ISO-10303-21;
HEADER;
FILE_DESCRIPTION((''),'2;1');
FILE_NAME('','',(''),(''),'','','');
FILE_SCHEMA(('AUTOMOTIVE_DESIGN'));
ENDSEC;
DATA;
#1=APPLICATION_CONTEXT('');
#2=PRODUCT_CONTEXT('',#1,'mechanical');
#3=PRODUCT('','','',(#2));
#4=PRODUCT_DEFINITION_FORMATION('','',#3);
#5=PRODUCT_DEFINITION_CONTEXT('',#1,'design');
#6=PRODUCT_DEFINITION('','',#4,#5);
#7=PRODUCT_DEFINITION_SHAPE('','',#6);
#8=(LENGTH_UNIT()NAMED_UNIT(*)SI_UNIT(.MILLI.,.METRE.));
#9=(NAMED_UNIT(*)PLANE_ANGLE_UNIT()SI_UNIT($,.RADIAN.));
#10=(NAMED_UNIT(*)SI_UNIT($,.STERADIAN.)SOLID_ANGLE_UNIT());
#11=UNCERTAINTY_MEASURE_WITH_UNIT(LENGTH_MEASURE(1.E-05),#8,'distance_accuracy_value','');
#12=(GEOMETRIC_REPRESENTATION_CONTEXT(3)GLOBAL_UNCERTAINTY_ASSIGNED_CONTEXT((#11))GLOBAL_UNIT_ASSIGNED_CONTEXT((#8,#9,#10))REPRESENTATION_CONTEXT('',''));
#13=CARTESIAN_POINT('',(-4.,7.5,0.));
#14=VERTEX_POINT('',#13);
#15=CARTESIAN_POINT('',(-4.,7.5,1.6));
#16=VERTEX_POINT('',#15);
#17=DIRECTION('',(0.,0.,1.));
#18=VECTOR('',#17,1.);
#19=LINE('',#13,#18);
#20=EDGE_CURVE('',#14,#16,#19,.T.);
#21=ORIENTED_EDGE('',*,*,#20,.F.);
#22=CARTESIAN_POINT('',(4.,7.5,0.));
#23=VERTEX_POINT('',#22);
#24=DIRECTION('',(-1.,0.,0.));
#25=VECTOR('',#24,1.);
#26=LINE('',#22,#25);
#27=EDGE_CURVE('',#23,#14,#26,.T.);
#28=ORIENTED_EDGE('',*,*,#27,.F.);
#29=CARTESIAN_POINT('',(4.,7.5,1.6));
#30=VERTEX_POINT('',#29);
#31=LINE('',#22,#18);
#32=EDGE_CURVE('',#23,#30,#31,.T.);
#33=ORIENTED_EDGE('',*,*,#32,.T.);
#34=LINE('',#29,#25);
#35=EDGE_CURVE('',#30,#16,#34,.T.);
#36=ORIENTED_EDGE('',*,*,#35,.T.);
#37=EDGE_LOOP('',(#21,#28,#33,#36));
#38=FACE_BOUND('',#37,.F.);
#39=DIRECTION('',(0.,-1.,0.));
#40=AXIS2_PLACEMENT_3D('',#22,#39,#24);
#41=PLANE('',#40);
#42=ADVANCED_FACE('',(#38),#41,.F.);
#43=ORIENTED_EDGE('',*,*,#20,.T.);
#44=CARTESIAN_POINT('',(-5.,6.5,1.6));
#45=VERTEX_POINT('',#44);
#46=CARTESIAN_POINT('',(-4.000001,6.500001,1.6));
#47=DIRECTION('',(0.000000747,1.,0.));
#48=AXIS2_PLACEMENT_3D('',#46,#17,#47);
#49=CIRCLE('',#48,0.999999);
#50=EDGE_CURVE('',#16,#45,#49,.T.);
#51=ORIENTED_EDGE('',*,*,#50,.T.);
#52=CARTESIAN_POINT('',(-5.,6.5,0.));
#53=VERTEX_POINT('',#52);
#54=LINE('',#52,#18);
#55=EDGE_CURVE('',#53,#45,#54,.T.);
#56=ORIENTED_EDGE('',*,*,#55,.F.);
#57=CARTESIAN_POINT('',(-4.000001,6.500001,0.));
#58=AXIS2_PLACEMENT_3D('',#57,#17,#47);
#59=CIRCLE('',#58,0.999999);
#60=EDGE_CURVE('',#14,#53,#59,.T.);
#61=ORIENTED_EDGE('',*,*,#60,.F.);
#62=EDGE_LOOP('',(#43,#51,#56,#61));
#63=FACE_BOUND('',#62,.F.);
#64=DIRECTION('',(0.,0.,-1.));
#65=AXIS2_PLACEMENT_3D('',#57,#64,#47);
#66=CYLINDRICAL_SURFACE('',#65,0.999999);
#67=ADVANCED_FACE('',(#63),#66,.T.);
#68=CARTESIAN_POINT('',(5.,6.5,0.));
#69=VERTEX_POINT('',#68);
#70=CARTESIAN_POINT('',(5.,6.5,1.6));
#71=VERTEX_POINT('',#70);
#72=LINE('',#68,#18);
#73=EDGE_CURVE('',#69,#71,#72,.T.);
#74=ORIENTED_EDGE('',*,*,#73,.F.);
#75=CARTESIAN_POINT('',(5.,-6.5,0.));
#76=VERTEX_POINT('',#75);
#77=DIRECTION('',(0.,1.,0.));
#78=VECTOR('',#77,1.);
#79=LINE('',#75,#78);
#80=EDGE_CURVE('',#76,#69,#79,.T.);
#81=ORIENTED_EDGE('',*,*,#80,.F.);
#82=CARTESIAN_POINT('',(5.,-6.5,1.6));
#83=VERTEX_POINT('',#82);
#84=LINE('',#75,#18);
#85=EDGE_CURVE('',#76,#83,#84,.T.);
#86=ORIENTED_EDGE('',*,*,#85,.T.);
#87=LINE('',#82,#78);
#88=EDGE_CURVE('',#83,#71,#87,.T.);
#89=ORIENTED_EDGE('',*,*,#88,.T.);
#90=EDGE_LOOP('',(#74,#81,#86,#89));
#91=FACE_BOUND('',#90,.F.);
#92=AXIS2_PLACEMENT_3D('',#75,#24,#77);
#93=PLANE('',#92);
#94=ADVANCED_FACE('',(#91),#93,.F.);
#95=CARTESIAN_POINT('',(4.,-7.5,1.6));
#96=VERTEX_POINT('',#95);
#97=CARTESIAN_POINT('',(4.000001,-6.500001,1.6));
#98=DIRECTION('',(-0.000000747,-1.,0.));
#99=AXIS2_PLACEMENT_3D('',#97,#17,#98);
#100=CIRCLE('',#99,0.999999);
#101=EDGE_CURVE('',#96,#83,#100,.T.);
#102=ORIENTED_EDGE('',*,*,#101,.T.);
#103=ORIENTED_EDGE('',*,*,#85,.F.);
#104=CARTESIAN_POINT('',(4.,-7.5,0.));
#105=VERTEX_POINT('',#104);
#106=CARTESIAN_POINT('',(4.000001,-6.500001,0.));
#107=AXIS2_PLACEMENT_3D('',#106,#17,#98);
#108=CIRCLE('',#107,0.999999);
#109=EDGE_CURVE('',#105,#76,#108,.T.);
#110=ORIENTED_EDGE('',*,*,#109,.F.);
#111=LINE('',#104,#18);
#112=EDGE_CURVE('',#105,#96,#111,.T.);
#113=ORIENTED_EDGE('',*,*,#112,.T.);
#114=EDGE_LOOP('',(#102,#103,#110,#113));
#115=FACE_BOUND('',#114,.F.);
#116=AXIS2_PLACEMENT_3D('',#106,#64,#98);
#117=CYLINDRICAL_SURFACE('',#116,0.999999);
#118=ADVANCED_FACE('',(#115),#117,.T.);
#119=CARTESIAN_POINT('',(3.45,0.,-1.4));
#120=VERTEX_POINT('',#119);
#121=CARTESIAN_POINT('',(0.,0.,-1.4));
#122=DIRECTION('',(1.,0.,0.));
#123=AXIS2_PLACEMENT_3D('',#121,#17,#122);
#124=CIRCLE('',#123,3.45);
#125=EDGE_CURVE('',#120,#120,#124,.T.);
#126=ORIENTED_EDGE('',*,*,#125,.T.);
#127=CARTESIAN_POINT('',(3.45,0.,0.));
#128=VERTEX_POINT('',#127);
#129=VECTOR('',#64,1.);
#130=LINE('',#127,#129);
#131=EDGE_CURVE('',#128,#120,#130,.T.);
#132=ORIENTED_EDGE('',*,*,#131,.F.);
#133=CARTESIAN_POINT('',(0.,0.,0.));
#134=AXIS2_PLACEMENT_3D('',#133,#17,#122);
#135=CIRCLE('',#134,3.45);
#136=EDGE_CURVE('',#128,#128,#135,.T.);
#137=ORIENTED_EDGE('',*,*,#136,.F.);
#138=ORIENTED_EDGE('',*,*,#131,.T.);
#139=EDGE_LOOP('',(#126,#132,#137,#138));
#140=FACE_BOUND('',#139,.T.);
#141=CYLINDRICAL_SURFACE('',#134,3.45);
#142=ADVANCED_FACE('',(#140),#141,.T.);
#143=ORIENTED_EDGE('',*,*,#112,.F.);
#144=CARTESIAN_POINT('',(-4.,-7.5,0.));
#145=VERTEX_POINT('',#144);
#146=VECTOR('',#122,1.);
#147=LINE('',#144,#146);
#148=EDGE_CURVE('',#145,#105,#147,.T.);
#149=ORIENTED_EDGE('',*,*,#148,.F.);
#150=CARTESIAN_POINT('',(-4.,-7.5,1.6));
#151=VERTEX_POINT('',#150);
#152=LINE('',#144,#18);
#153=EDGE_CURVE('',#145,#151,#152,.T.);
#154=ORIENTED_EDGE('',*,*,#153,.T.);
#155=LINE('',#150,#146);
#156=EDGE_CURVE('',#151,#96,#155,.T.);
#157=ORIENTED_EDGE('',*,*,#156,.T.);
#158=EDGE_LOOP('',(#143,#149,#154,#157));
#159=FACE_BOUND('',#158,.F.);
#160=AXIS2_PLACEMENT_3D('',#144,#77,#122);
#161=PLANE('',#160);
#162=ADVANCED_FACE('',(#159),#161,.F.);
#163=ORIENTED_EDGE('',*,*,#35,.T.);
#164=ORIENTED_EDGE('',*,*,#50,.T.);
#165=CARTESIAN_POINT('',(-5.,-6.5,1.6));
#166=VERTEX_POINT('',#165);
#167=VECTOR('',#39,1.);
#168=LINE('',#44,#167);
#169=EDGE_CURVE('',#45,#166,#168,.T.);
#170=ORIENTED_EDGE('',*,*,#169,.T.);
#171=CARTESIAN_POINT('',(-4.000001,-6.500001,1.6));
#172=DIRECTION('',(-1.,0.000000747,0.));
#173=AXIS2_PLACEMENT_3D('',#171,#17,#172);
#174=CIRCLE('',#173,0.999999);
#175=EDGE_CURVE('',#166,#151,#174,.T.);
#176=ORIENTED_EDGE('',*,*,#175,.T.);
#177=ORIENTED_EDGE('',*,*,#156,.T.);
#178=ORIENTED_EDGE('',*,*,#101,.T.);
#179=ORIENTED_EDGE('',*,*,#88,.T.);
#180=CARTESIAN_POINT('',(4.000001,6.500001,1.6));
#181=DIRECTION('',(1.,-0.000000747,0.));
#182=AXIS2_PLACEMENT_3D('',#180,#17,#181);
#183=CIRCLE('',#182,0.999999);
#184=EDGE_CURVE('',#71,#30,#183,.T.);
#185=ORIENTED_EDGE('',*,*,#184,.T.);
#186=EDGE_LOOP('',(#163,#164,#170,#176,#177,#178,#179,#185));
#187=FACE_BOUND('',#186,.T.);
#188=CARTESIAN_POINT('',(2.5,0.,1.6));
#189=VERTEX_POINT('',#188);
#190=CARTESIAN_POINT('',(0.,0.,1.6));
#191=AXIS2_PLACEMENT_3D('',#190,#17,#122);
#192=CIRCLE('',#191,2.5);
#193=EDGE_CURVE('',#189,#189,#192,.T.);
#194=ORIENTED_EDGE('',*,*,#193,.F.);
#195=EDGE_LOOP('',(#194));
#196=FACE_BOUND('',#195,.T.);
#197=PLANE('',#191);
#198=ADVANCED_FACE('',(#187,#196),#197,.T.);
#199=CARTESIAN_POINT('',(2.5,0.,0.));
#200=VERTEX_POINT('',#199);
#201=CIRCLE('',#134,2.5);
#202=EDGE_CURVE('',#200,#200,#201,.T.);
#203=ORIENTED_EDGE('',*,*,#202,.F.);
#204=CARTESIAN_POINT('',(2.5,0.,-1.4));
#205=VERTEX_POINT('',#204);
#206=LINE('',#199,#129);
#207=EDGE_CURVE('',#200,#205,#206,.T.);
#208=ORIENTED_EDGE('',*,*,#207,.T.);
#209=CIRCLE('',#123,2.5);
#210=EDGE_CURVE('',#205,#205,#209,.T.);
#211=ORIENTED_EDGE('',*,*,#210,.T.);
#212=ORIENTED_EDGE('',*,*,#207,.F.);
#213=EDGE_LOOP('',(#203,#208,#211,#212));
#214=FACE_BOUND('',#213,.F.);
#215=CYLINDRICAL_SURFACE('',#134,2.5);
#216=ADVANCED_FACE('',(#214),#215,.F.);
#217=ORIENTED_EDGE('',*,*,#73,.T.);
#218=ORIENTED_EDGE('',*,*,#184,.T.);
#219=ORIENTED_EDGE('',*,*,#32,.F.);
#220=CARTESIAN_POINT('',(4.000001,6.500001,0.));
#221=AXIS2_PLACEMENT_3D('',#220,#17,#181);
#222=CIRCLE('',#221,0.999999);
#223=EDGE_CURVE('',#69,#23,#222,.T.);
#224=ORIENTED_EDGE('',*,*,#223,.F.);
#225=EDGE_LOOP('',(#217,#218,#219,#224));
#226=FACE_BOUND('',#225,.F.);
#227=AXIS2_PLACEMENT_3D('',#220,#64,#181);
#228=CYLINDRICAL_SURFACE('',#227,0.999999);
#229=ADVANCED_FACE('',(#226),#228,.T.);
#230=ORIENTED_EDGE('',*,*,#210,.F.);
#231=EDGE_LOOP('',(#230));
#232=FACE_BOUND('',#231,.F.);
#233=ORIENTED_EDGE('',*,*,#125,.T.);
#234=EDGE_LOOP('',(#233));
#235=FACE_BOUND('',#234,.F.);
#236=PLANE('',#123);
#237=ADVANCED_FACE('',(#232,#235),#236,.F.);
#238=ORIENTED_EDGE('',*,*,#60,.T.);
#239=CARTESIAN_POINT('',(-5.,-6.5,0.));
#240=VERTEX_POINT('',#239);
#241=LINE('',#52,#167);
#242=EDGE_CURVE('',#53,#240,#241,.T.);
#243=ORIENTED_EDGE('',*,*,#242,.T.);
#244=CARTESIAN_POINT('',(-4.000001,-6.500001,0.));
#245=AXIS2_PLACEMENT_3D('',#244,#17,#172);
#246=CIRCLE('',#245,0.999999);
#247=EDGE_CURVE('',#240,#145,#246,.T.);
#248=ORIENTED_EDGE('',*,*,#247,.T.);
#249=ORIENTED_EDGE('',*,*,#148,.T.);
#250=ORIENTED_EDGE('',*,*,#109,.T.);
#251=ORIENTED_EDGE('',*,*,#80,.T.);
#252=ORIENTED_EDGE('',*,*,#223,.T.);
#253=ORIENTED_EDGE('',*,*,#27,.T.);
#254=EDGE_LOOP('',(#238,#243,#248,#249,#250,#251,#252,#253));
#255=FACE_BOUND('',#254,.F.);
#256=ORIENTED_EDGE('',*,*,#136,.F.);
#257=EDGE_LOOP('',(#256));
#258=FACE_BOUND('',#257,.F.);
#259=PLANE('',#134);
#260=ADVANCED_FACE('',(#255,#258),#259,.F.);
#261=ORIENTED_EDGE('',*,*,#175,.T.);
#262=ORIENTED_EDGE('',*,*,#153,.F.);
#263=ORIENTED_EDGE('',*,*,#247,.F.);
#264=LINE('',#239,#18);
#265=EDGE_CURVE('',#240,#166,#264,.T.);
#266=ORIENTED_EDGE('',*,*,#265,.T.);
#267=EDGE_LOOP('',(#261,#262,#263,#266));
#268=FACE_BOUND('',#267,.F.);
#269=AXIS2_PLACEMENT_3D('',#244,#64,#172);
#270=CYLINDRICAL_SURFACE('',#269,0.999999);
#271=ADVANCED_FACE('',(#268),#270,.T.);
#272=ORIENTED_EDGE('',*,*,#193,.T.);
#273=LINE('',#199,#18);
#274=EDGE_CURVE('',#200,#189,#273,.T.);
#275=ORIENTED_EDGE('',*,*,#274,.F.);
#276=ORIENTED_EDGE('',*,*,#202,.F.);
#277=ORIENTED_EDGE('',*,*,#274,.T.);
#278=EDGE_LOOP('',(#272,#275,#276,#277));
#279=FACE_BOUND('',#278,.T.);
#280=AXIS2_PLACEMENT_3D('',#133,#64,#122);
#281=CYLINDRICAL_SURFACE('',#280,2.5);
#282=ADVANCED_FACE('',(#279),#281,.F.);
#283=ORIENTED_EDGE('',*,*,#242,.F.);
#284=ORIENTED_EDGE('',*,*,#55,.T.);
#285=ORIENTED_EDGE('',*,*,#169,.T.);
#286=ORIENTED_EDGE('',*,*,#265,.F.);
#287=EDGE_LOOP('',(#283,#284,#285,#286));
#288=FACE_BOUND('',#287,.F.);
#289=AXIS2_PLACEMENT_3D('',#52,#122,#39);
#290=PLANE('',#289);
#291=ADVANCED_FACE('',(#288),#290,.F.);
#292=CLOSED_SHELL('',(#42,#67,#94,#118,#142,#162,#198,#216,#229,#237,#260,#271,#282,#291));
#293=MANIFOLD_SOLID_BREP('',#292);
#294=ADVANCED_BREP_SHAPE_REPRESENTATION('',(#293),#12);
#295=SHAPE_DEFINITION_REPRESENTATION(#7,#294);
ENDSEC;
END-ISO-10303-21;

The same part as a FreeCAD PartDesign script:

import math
import FreeCAD as App
import Part
import Sketcher
Q = App.Units.Quantity

doc = App.newDocument("Part")
body = doc.addObject("PartDesign::Body", "Body")

# Sketch on XY plane
sketch1 = body.newObject("Sketcher::SketchObject", "Sketch")
sketch1.AttachmentSupport = (doc.getObject("XY_Plane"), [""])
sketch1.MapMode = "FlatFace"
sketch1.addGeometry([
    Part.LineSegment(App.Vector(-4, -7.5, 0), App.Vector(4, -7.5, 0)),  # 0
    Part.ArcOfCircle(Part.Circle(App.Vector(4, -6.5, 0), App.Vector(0, 0, 1), 1), math.radians(-90), math.radians(0)),  # 1
    Part.LineSegment(App.Vector(5, -6.5, 0), App.Vector(5, 6.5, 0)),  # 2
    Part.ArcOfCircle(Part.Circle(App.Vector(4, 6.5, 0), App.Vector(0, 0, 1), 1), math.radians(0), math.radians(90)),  # 3
    Part.LineSegment(App.Vector(4, 7.5, 0), App.Vector(-4, 7.5, 0)),  # 4
    Part.ArcOfCircle(Part.Circle(App.Vector(-4, 6.5, 0), App.Vector(0, 0, 1), 1), math.radians(90), math.radians(180)),  # 5
    Part.LineSegment(App.Vector(-5, 6.5, 0), App.Vector(-5, -6.5, 0)),  # 6
    Part.ArcOfCircle(Part.Circle(App.Vector(-4, -6.5, 0), App.Vector(0, 0, 1), 1), math.radians(180), math.radians(270)),  # 7
    Part.Circle(App.Vector(0, 0, 0), App.Vector(0, 0, 1), 2.5),  # 8
], False)
sketch1.addConstraint([
    Sketcher.Constraint("Tangent", 0, 2, 1, 1),
    Sketcher.Constraint("Tangent", 1, 2, 2, 1),
    Sketcher.Constraint("Tangent", 2, 2, 3, 1),
    Sketcher.Constraint("Tangent", 3, 2, 4, 1),
    Sketcher.Constraint("Tangent", 4, 2, 5, 1),
    Sketcher.Constraint("Tangent", 5, 2, 6, 1),
    Sketcher.Constraint("Tangent", 6, 2, 7, 1),
    Sketcher.Constraint("Tangent", 7, 2, 0, 1),
    Sketcher.Constraint("Horizontal", 0),
    Sketcher.Constraint("Vertical", 2),
    Sketcher.Constraint("Horizontal", 4),
    Sketcher.Constraint("Vertical", 6),
    Sketcher.Constraint("Coincident", 8, 3, -1, 1),
    Sketcher.Constraint("Equal", 1, 3),
    Sketcher.Constraint("Equal", 3, 5),
    Sketcher.Constraint("Equal", 5, 7),
    Sketcher.Constraint("Symmetric", 1, 3, 5, 3, -1, 1),
    Sketcher.Constraint("Diameter", 8, Q("5 mm")),
    Sketcher.Constraint("Radius", 1, Q("0.999999 mm")),
    Sketcher.Constraint("DistanceX", 0, 1, 0, 2, Q("8 mm")),
    Sketcher.Constraint("DistanceY", 2, 1, 2, 2, Q("13 mm")),
])
pad1 = body.newObject("PartDesign::Pad", "Pad")
pad1.Profile = sketch1
pad1.Length = 1.6

# Sketch on XY plane
sketch2 = body.newObject("Sketcher::SketchObject", "Sketch001")
sketch2.AttachmentSupport = (doc.getObject("XY_Plane"), [""])
sketch2.MapMode = "FlatFace"
sketch2.addGeometry([
    Part.Circle(App.Vector(0, 0, 0), App.Vector(0, 0, 1), 3.5),
    Part.Circle(App.Vector(0, 0, 0), App.Vector(0, 0, 1), 2.5),
], False)
sketch2.addConstraint([
    Sketcher.Constraint("Coincident", 0, 3, -1, 1),
    Sketcher.Constraint("Coincident", 1, 3, -1, 1),
    Sketcher.Constraint("Diameter", 1, Q("5 mm")),
    Sketcher.Constraint("Diameter", 0, Q("6.9 mm")),
])
pad2 = body.newObject("PartDesign::Pad", "Pad001")
pad2.Profile = sketch2
pad2.Length = 1.4
pad2.Reversed = True

doc.recompute()
